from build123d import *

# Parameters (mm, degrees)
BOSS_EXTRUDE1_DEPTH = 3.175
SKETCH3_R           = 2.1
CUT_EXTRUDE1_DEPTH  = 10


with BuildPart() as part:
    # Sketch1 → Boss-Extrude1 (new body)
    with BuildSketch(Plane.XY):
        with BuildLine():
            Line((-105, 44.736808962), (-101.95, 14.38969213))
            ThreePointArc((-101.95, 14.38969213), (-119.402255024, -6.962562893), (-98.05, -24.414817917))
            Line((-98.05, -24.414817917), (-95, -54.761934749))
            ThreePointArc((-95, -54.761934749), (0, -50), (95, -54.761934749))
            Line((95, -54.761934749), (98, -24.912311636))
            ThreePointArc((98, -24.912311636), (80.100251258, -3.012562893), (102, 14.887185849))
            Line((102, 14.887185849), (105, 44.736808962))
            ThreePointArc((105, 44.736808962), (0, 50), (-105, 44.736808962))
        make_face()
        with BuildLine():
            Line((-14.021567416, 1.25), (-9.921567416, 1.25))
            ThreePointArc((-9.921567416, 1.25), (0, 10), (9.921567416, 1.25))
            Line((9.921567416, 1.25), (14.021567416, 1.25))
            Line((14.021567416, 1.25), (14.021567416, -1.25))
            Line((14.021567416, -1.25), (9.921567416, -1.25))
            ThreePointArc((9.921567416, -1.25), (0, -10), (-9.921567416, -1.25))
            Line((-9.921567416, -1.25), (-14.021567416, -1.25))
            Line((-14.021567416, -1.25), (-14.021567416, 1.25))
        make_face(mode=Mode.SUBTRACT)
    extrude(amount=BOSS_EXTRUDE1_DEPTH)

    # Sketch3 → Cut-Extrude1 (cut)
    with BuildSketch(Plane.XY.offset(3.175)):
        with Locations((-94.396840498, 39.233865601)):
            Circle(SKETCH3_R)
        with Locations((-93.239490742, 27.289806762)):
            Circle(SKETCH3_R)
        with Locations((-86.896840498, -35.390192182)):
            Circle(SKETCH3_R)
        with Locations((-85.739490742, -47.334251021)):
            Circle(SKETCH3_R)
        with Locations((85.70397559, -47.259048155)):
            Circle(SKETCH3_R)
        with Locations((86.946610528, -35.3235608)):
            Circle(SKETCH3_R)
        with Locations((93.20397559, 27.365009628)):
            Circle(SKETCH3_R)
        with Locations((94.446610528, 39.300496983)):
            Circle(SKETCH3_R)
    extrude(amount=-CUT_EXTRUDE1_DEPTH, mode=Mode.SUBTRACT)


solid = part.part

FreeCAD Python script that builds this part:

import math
import FreeCAD as App
import Part
import Sketcher

V = App.Vector
Q = App.Units.Quantity

doc = App.newDocument("Part")
body = doc.addObject("PartDesign::Body", "Body")

sketch1 = body.newObject("Sketcher::SketchObject", "Sketch")
sketch1.AttachmentSupport = (doc.getObject("XY_Plane"), [""])
sketch1.MapMode = "FlatFace"
sketch1.addGeometry([
    Part.LineSegment(V(-105, 44.7, 0), V(-102, 14.4, 0)),
    Part.ArcOfCircle(Part.Circle(V(-100, -5, 0), V(0, 0, 1), 19.5), math.radians(96), math.radians(276)),
    Part.LineSegment(V(-98, -24.4, 0), V(-95, -54.8, 0)),
    Part.ArcOfCircle(Part.Circle(V(0, -1000, 0), V(0, 0, 1), 950), math.radians(84.26), math.radians(95.74)),
    Part.LineSegment(V(95, -54.8, 0), V(98, -24.9, 0)),
    Part.ArcOfCircle(Part.Circle(V(100, -5, 0), V(0, 0, 1), 20), math.radians(84), math.radians(264)),
    Part.LineSegment(V(102, 14.9, 0), V(105, 44.7, 0)),
    Part.ArcOfCircle(Part.Circle(V(0, -1000, 0), V(0, 0, 1), 1050), math.radians(84.26), math.radians(95.74)),
    Part.LineSegment(V(-14, -1.2, 0), V(-14, 1.2, 0)),
    Part.LineSegment(V(-14, 1.2, 0), V(-9.9, 1.2, 0)),
    Part.ArcOfCircle(Part.Circle(V(0, 0, 0), V(0, 0, 1), 10), math.radians(7), math.radians(173)),
    Part.LineSegment(V(9.9, 1.2, 0), V(14, 1.2, 0)),
    Part.LineSegment(V(14, 1.2, 0), V(14, -1.2, 0)),
    Part.LineSegment(V(14, -1.2, 0), V(9.9, -1.2, 0)),
    Part.ArcOfCircle(Part.Circle(V(0, 0, 0), V(0, 0, 1), 10), math.radians(-173), math.radians(-7)),
    Part.LineSegment(V(-9.9, -1.2, 0), V(-14, -1.2, 0)),
], False)
sketch1.addConstraint([
    Sketcher.Constraint("Coincident", 0, 2, 1, 1),
    Sketcher.Constraint("Coincident", 1, 2, 2, 1),
    Sketcher.Constraint("Coincident", 2, 2, 3, 2),
    Sketcher.Constraint("Coincident", 3, 1, 4, 1),
    Sketcher.Constraint("Coincident", 4, 2, 5, 2),
    Sketcher.Constraint("Coincident", 5, 1, 6, 1),
    Sketcher.Constraint("Coincident", 6, 2, 7, 1),
    Sketcher.Constraint("Coincident", 7, 2, 0, 1),
    Sketcher.Constraint("Coincident", 8, 2, 9, 1),
    Sketcher.Constraint("Coincident", 9, 2, 10, 2),
    Sketcher.Constraint("Coincident", 10, 1, 11, 1),
    Sketcher.Constraint("Coincident", 11, 2, 12, 1),
    Sketcher.Constraint("Coincident", 12, 2, 13, 1),
    Sketcher.Constraint("Coincident", 13, 2, 14, 2),
    Sketcher.Constraint("Coincident", 14, 1, 15, 1),
    Sketcher.Constraint("Coincident", 15, 2, 8, 1),
    Sketcher.Constraint("Vertical", 8),
    Sketcher.Constraint("Horizontal", 9),
    Sketcher.Constraint("Horizontal", 11),
    Sketcher.Constraint("Vertical", 12),
    Sketcher.Constraint("Horizontal", 13),
    Sketcher.Constraint("Horizontal", 15),
    Sketcher.Constraint("Coincident", 10, 3, -1, 1),
    Sketcher.Constraint("Coincident", 14, 3, -1, 1),
    Sketcher.Constraint("Coincident", 7, 3, 3, 3),
    Sketcher.Constraint("Equal", 10, 14),
    Sketcher.Constraint("Symmetric", 8, 2, 12, 2, -1, 1),
    Sketcher.Constraint("Symmetric", 1, 3, 5, 3, -2),
    Sketcher.Constraint("PointOnObject", 3, 3, -2),
    Sketcher.Constraint("Parallel", 0, 2),
    Sketcher.Constraint("Parallel", 4, 6),
    Sketcher.Constraint("Horizontal", 9, 2, 10, 1),
    Sketcher.Constraint("Horizontal", 13, 2, 14, 1),
    Sketcher.Constraint("Equal", 0, 2),
    Sketcher.Constraint("Radius", 3, Q("950 mm")),
    Sketcher.Constraint("Radius", 5, Q("20 mm")),
    Sketcher.Constraint("Radius", 7, Q("1050 mm")),
    Sketcher.Constraint("Radius", 10, Q("10 mm")),
    Sketcher.Constraint("Radius", 1, Q("19.5 mm")),
    Sketcher.Constraint("DistanceX", 9, 1, 9, 2, Q("4.1 mm")),
    Sketcher.Constraint("DistanceY", 8, 1, 8, 2, Q("2.5 mm")),
    Sketcher.Constraint("DistanceX", 1, 3, -1, 1, Q("100 mm")),
    Sketcher.Constraint("DistanceY", 3, 3, -1, 1, Q("1000 mm")),
    Sketcher.Constraint("DistanceX", 2, 2, -1, 1, Q("95 mm")),
    Sketcher.Constraint("DistanceX", -1, 1, 4, 2, Q("98 mm")),
    Sketcher.Constraint("DistanceX", -1, 1, 5, 1, Q("102 mm")),
    Sketcher.Constraint("DistanceX", -1, 1, 6, 2, Q("105 mm")),
    Sketcher.Constraint("DistanceX", 0, 2, 1, 2, Q("3.9 mm")),
    Sketcher.Constraint("DistanceX", 0, 2, -1, 1, Q("101.95 mm")),
])
pad1 = body.newObject("PartDesign::Pad", "Pad")
pad1.Profile = sketch1
pad1.Length = 3.175

sketch2 = body.newObject("Sketcher::SketchObject", "Sketch001")
sketch2.AttachmentSupport = (doc.getObject("XY_Plane"), [""])
sketch2.MapMode = "FlatFace"
sketch2.AttachmentOffset = App.Placement(V(0, 0, 3.175), App.Rotation())
sketch2.addGeometry([
    Part.Circle(V(-94.4, 39.2, 0), V(0, 0, 1), 2.1),
    Part.Circle(V(-93.2, 27.3, 0), V(0, 0, 1), 2.1),
    Part.Circle(V(-86.9, -35.4, 0), V(0, 0, 1), 2.1),
    Part.Circle(V(-85.7, -47.3, 0), V(0, 0, 1), 2.1),
    Part.Circle(V(85.7, -47.3, 0), V(0, 0, 1), 2.1),
    Part.Circle(V(86.9, -35.3, 0), V(0, 0, 1), 2.1),
    Part.Circle(V(93.2, 27.4, 0), V(0, 0, 1), 2.1),
    Part.Circle(V(94.4, 39.3, 0), V(0, 0, 1), 2.1),
], False)
sketch2.addConstraint([
    Sketcher.Constraint("Equal", 0, 1),
    Sketcher.Constraint("Equal", 1, 2),
    Sketcher.Constraint("Equal", 2, 3),
    Sketcher.Constraint("Equal", 3, 4),
    Sketcher.Constraint("Equal", 4, 5),
    Sketcher.Constraint("Equal", 5, 6),
    Sketcher.Constraint("Equal", 6, 7),
    Sketcher.Constraint("Diameter", 0, Q("4.2 mm")),
    Sketcher.Constraint("DistanceX", 0, 3, 2, 3, Q("7.5 mm")),
    Sketcher.Constraint("DistanceX", 1, 3, 3, 3, Q("7.5 mm")),
    Sketcher.Constraint("DistanceX", 4, 3, 6, 3, Q("7.5 mm")),
    Sketcher.Constraint("DistanceX", 5, 3, 7, 3, Q("7.5 mm")),
    Sketcher.Constraint("DistanceY", 2, 3, 1, 3, Q("62.679999 mm")),
    Sketcher.Constraint("DistanceX", 3, 3, 5, 3, Q("172.686101 mm")),
    Sketcher.Constraint("DistanceY", 2, 3, 6, 3, Q("62.755202 mm")),
    Sketcher.Constraint("DistanceX", 0, 3, -1, 1, Q("94.39684 mm")),
    Sketcher.Constraint("DistanceX", 1, 3, -1, 1, Q("93.239491 mm")),
    Sketcher.Constraint("DistanceY", 3, 3, -1, 1, Q("47.334251 mm")),
    Sketcher.Constraint("DistanceY", 4, 3, -1, 1, Q("47.259048 mm")),
    Sketcher.Constraint("DistanceY", 5, 3, -1, 1, Q("35.323561 mm")),
    Sketcher.Constraint("DistanceY", -1, 1, 6, 3, Q("27.36501 mm")),
    Sketcher.Constraint("DistanceY", 1, 3, 0, 3, Q("11.944059 mm")),
    Sketcher.Constraint("DistanceY", 1, 3, 7, 3, Q("12.01069 mm")),
    Sketcher.Constraint("DistanceX", -1, 1, 4, 3, Q("85.703976 mm")),
])
pocket1 = body.newObject("PartDesign::Pocket", "Pocket")
pocket1.Profile = sketch2
pocket1.Length = 10

doc.recompute()
